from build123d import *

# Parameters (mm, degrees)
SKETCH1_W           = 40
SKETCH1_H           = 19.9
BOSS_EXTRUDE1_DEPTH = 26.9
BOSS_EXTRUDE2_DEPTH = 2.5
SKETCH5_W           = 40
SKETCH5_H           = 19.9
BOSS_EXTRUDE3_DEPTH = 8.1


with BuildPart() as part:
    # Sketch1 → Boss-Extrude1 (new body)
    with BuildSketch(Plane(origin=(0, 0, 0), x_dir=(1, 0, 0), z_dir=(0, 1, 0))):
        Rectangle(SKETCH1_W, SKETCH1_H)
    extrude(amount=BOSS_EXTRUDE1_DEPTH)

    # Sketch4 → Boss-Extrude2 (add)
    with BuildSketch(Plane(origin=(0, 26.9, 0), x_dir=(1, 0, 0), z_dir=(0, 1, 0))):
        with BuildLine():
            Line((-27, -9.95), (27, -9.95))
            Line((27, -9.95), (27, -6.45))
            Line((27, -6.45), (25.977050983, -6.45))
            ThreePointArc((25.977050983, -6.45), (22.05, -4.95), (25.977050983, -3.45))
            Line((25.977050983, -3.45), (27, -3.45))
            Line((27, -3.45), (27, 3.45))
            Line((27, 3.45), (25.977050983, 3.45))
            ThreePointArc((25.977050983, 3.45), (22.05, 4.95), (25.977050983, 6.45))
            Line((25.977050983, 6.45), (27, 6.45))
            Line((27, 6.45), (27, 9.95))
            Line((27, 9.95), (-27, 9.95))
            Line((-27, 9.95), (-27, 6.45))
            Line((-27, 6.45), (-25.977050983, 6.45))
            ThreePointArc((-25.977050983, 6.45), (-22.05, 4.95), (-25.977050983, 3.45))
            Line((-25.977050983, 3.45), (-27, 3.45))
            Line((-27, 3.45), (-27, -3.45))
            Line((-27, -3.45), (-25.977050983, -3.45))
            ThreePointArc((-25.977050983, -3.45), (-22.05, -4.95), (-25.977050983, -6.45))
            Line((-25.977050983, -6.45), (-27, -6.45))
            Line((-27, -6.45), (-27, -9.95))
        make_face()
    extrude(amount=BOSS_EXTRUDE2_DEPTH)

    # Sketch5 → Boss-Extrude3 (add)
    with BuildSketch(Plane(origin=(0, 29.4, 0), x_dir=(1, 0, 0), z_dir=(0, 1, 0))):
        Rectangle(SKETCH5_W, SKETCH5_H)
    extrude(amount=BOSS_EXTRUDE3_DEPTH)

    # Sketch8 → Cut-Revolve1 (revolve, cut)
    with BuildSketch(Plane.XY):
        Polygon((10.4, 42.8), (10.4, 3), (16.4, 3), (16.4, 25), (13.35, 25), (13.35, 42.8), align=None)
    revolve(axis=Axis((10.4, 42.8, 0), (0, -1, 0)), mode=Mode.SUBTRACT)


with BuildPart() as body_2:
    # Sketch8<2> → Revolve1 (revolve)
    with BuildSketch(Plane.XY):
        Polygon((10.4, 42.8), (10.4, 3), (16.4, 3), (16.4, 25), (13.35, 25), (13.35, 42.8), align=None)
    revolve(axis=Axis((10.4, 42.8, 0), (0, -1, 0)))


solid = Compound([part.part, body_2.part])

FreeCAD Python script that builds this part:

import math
import FreeCAD as App
import Part
import Sketcher


def add_polygon(sketch, points):
    """Adds a closed chain of lines whose ends are joined by coincident constraints."""
    first, n = sketch.GeometryCount, len(points)
    for a, b in zip(points, points[1:] + points[:1]):
        sketch.addGeometry(Part.LineSegment(App.Vector(*a, 0), App.Vector(*b, 0)), False)
    for i in range(n):
        sketch.addConstraint(Sketcher.Constraint("Coincident", first + i, 2, first + (i + 1) % n, 1))

doc = App.newDocument("Part")
body = doc.addObject("PartDesign::Body", "Body")

# Sketch on XZ plane
sketch1 = doc.addObject("Sketcher::SketchObject", "Sketch")
body.addObject(sketch1)
sketch1.AttachmentSupport = (doc.XZ_Plane, [""])
sketch1.MapMode = "FlatFace"
add_polygon(sketch1, [(-20, -10), (-20, 10), (20, 10), (20, -10)])  # lines 0-3
sketch1.addConstraint([
    Sketcher.Constraint("Vertical", 0),
    Sketcher.Constraint("Horizontal", 1),
    Sketcher.Constraint("Vertical", 2),
    Sketcher.Constraint("Horizontal", 3),
    Sketcher.Constraint("Symmetric", 0, 2, 2, 2, -1, 1),
    Sketcher.Constraint("DistanceX", 1, 1, 1, 2, 40.0),
    Sketcher.Constraint("DistanceY", 0, 1, 0, 2, 19.9),
])
pad1 = doc.addObject("PartDesign::Pad", "Pad")
body.addObject(pad1)
pad1.Profile = sketch1
pad1.Length = 26.9
pad1.Reversed = True

# Sketch on XZ plane
sketch2 = doc.addObject("Sketcher::SketchObject", "Sketch001")
body.addObject(sketch2)
sketch2.AttachmentSupport = (doc.XZ_Plane, [""])
sketch2.MapMode = "FlatFace"
sketch2.AttachmentOffset = App.Placement(App.Vector(0, 0, -26.9), App.Rotation())
sketch2.addGeometry([
    Part.LineSegment(App.Vector(-27, 9.9, 0), App.Vector(27, 9.9, 0)),  # 0
    Part.LineSegment(App.Vector(27, 9.9, 0), App.Vector(27, 6.5, 0)),  # 1
    Part.LineSegment(App.Vector(27, 6.5, 0), App.Vector(26, 6.5, 0)),  # 2
    Part.ArcOfCircle(Part.Circle(App.Vector(24.3, 5, 0), App.Vector(0, 0, 1), 2.2), math.radians(42), math.radians(318)),  # 3
    Part.LineSegment(App.Vector(26, 3.5, 0), App.Vector(27, 3.5, 0)),  # 4
    Part.LineSegment(App.Vector(27, 3.5, 0), App.Vector(27, -3.5, 0)),  # 5
    Part.LineSegment(App.Vector(27, -3.5, 0), App.Vector(26, -3.5, 0)),  # 6
    Part.ArcOfCircle(Part.Circle(App.Vector(24.3, -5, 0), App.Vector(0, 0, 1), 2.2), math.radians(42), math.radians(318)),  # 7
    Part.LineSegment(App.Vector(26, -6.5, 0), App.Vector(27, -6.5, 0)),  # 8
    Part.LineSegment(App.Vector(27, -6.5, 0), App.Vector(27, -9.9, 0)),  # 9
    Part.LineSegment(App.Vector(27, -9.9, 0), App.Vector(-27, -9.9, 0)),  # 10
    Part.LineSegment(App.Vector(-27, -9.9, 0), App.Vector(-27, -6.5, 0)),  # 11
    Part.LineSegment(App.Vector(-27, -6.5, 0), App.Vector(-26, -6.5, 0)),  # 12
    Part.ArcOfCircle(Part.Circle(App.Vector(-24.3, -5, 0), App.Vector(0, 0, 1), 2.2), math.radians(-138), math.radians(138)),  # 13
    Part.LineSegment(App.Vector(-26, -3.5, 0), App.Vector(-27, -3.5, 0)),  # 14
    Part.LineSegment(App.Vector(-27, -3.5, 0), App.Vector(-27, 3.5, 0)),  # 15
    Part.LineSegment(App.Vector(-27, 3.5, 0), App.Vector(-26, 3.5, 0)),  # 16
    Part.ArcOfCircle(Part.Circle(App.Vector(-24.3, 5, 0), App.Vector(0, 0, 1), 2.2), math.radians(-138), math.radians(138)),  # 17
    Part.LineSegment(App.Vector(-26, 6.5, 0), App.Vector(-27, 6.5, 0)),  # 18
    Part.LineSegment(App.Vector(-27, 6.5, 0), App.Vector(-27, 9.9, 0)),  # 19
], False)
sketch2.addConstraint([
    Sketcher.Constraint("Coincident", 0, 2, 1, 1),
    Sketcher.Constraint("Coincident", 1, 2, 2, 1),
    Sketcher.Constraint("Coincident", 2, 2, 3, 1),
    Sketcher.Constraint("Coincident", 3, 2, 4, 1),
    Sketcher.Constraint("Coincident", 4, 2, 5, 1),
    Sketcher.Constraint("Coincident", 5, 2, 6, 1),
    Sketcher.Constraint("Coincident", 6, 2, 7, 1),
    Sketcher.Constraint("Coincident", 7, 2, 8, 1),
    Sketcher.Constraint("Coincident", 8, 2, 9, 1),
    Sketcher.Constraint("Coincident", 9, 2, 10, 1),
    Sketcher.Constraint("Coincident", 10, 2, 11, 1),
    Sketcher.Constraint("Coincident", 11, 2, 12, 1),
    Sketcher.Constraint("Coincident", 12, 2, 13, 1),
    Sketcher.Constraint("Coincident", 13, 2, 14, 1),
    Sketcher.Constraint("Coincident", 14, 2, 15, 1),
    Sketcher.Constraint("Coincident", 15, 2, 16, 1),
    Sketcher.Constraint("Coincident", 16, 2, 17, 1),
    Sketcher.Constraint("Coincident", 17, 2, 18, 1),
    Sketcher.Constraint("Coincident", 18, 2, 19, 1),
    Sketcher.Constraint("Coincident", 19, 2, 0, 1),
    Sketcher.Constraint("Horizontal", 0),
    Sketcher.Constraint("Vertical", 1),
    Sketcher.Constraint("Horizontal", 2),
    Sketcher.Constraint("Horizontal", 4),
    Sketcher.Constraint("Vertical", 5),
    Sketcher.Constraint("Horizontal", 6),
    Sketcher.Constraint("Horizontal", 8),
    Sketcher.Constraint("Vertical", 9),
    Sketcher.Constraint("Horizontal", 10),
    Sketcher.Constraint("Vertical", 11),
    Sketcher.Constraint("Horizontal", 12),
    Sketcher.Constraint("Horizontal", 14),
    Sketcher.Constraint("Vertical", 15),
    Sketcher.Constraint("Horizontal", 16),
    Sketcher.Constraint("Horizontal", 18),
    Sketcher.Constraint("Vertical", 19),
    Sketcher.Constraint("Equal", 3, 7),
    Sketcher.Constraint("Equal", 7, 13),
    Sketcher.Constraint("Equal", 13, 17),
    Sketcher.Constraint("Symmetric", 3, 3, 13, 3, -1, 1),
    Sketcher.Constraint("Symmetric", 7, 3, 17, 3, -1, 1),
    Sketcher.Constraint("Symmetric", 0, 2, 10, 2, -1, 1),
    Sketcher.Constraint("Symmetric", 4, 2, 14, 2, -1, 1),
    Sketcher.Constraint("Symmetric", 8, 2, 18, 2, -1, 1),
    Sketcher.Constraint("Symmetric", 7, 3, 13, 3, -2),
    Sketcher.Constraint("Symmetric", 8, 2, 11, 2, -2),
    Sketcher.Constraint("Horizontal", 6, 2, 13, 2),
    Sketcher.Constraint("Horizontal", 4, 2, 15, 2),
    Sketcher.Constraint("Horizontal", 2, 2, 17, 2),
    Sketcher.Constraint("Vertical", 2, 2, 3, 2),
    Sketcher.Constraint("Vertical", 1, 2, 4, 2),
    Sketcher.Constraint("DistanceX", 0, 1, 0, 2, 54.0),
    Sketcher.Constraint("Radius", 3, 2.25),
    Sketcher.Constraint("DistanceY", 1, 2, 1, 1, 3.5),
    Sketcher.Constraint("DistanceY", 5, 2, 5, 1, 6.9),
    Sketcher.Constraint("DistanceY", 3, 3, 0, 2, 5.0),
    Sketcher.Constraint("DistanceX", -1, 1, 3, 3, 24.3),
])
pad2 = doc.addObject("PartDesign::Pad", "Pad001")
body.addObject(pad2)
pad2.Profile = sketch2
pad2.Length = 2.5
pad2.Reversed = True

# Sketch on XZ plane
sketch3 = doc.addObject("Sketcher::SketchObject", "Sketch002")
body.addObject(sketch3)
sketch3.AttachmentSupport = (doc.XZ_Plane, [""])
sketch3.MapMode = "FlatFace"
sketch3.AttachmentOffset = App.Placement(App.Vector(0, 0, -29.4), App.Rotation())
add_polygon(sketch3, [(-20, -10), (-20, 10), (20, 10), (20, -10)])  # lines 0-3
sketch3.addConstraint([
    Sketcher.Constraint("Vertical", 0),
    Sketcher.Constraint("Horizontal", 1),
    Sketcher.Constraint("Vertical", 2),
    Sketcher.Constraint("Horizontal", 3),
    Sketcher.Constraint("Symmetric", 0, 2, 2, 2, -1, 1),
    Sketcher.Constraint("DistanceX", 1, 1, 1, 2, 40.0),
    Sketcher.Constraint("DistanceY", 0, 1, 0, 2, 19.9),
])
pad3 = doc.addObject("PartDesign::Pad", "Pad002")
body.addObject(pad3)
pad3.Profile = sketch3
pad3.Length = 8.1
pad3.Reversed = True

# Sketch on XY plane
sketch4 = doc.addObject("Sketcher::SketchObject", "Sketch003")
body.addObject(sketch4)
sketch4.AttachmentSupport = (doc.XY_Plane, [""])
sketch4.MapMode = "FlatFace"
add_polygon(sketch4, [(10.4, 42.8), (10.4, 3), (16.4, 3), (16.4, 25), (13.3, 25), (13.3, 42.8)])  # lines 0-5
sketch4.addGeometry(Part.LineSegment(App.Vector(10.4, 42.8, 0), App.Vector(10.4, 3, 0)), True)  # axis
sketch4.addConstraint([
    Sketcher.Constraint("Vertical", 0),
    Sketcher.Constraint("Horizontal", 1),
    Sketcher.Constraint("Vertical", 2),
    Sketcher.Constraint("Horizontal", 3),
    Sketcher.Constraint("Vertical", 4),
    Sketcher.Constraint("Horizontal", 5),
    Sketcher.Constraint("Vertical", 6),
    Sketcher.Constraint("Coincident", 6, 1, 5, 2),
    Sketcher.Constraint("Horizontal", 1, 2, 6, 2),
    Sketcher.Constraint("DistanceX", 1, 1, 1, 2, 6.0),
    Sketcher.Constraint("DistanceY", 2, 1, 2, 2, 22.0),
    Sketcher.Constraint("DistanceY", 0, 2, 0, 1, 39.8),
    Sketcher.Constraint("DistanceY", -1, 1, 0, 2, 3.0),
    Sketcher.Constraint("DistanceX", 3, 2, 3, 1, 3.05),
    Sketcher.Constraint("DistanceX", -1, 1, 0, 2, 10.4),
])
groove = doc.addObject("PartDesign::Groove", "Groove")
body.addObject(groove)
groove.Profile = sketch4
groove.ReferenceAxis = (sketch4, ["Axis0"])
groove.Angle = 360
body2 = doc.addObject("PartDesign::Body", "Body001")

# Sketch on XY plane
sketch5 = doc.addObject("Sketcher::SketchObject", "Sketch004")
body2.addObject(sketch5)
sketch5.AttachmentSupport = (doc.getObject("XY_Plane001"), [""])
sketch5.MapMode = "FlatFace"
add_polygon(sketch5, [(10.4, 42.8), (10.4, 3), (16.4, 3), (16.4, 25), (13.3, 25), (13.3, 42.8)])  # lines 0-5
sketch5.addGeometry(Part.LineSegment(App.Vector(10.4, 42.8, 0), App.Vector(10.4, 3, 0)), True)  # axis
sketch5.addConstraint([
    Sketcher.Constraint("Vertical", 0),
    Sketcher.Constraint("Horizontal", 1),
    Sketcher.Constraint("Vertical", 2),
    Sketcher.Constraint("Horizontal", 3),
    Sketcher.Constraint("Vertical", 4),
    Sketcher.Constraint("Horizontal", 5),
    Sketcher.Constraint("Vertical", 6),
    Sketcher.Constraint("Coincident", 6, 1, 5, 2),
    Sketcher.Constraint("Horizontal", 1, 2, 6, 2),
    Sketcher.Constraint("DistanceX", 1, 1, 1, 2, 6.0),
    Sketcher.Constraint("DistanceY", 2, 1, 2, 2, 22.0),
    Sketcher.Constraint("DistanceY", 0, 2, 0, 1, 39.8),
    Sketcher.Constraint("DistanceY", -1, 1, 0, 2, 3.0),
    Sketcher.Constraint("DistanceX", 3, 2, 3, 1, 3.05),
    Sketcher.Constraint("DistanceX", -1, 1, 0, 2, 10.4),
])
revolution = doc.addObject("PartDesign::Revolution", "Revolution")
body2.addObject(revolution)
revolution.Profile = sketch5
revolution.ReferenceAxis = (sketch5, ["Axis0"])
revolution.Angle = 360

doc.recompute()
